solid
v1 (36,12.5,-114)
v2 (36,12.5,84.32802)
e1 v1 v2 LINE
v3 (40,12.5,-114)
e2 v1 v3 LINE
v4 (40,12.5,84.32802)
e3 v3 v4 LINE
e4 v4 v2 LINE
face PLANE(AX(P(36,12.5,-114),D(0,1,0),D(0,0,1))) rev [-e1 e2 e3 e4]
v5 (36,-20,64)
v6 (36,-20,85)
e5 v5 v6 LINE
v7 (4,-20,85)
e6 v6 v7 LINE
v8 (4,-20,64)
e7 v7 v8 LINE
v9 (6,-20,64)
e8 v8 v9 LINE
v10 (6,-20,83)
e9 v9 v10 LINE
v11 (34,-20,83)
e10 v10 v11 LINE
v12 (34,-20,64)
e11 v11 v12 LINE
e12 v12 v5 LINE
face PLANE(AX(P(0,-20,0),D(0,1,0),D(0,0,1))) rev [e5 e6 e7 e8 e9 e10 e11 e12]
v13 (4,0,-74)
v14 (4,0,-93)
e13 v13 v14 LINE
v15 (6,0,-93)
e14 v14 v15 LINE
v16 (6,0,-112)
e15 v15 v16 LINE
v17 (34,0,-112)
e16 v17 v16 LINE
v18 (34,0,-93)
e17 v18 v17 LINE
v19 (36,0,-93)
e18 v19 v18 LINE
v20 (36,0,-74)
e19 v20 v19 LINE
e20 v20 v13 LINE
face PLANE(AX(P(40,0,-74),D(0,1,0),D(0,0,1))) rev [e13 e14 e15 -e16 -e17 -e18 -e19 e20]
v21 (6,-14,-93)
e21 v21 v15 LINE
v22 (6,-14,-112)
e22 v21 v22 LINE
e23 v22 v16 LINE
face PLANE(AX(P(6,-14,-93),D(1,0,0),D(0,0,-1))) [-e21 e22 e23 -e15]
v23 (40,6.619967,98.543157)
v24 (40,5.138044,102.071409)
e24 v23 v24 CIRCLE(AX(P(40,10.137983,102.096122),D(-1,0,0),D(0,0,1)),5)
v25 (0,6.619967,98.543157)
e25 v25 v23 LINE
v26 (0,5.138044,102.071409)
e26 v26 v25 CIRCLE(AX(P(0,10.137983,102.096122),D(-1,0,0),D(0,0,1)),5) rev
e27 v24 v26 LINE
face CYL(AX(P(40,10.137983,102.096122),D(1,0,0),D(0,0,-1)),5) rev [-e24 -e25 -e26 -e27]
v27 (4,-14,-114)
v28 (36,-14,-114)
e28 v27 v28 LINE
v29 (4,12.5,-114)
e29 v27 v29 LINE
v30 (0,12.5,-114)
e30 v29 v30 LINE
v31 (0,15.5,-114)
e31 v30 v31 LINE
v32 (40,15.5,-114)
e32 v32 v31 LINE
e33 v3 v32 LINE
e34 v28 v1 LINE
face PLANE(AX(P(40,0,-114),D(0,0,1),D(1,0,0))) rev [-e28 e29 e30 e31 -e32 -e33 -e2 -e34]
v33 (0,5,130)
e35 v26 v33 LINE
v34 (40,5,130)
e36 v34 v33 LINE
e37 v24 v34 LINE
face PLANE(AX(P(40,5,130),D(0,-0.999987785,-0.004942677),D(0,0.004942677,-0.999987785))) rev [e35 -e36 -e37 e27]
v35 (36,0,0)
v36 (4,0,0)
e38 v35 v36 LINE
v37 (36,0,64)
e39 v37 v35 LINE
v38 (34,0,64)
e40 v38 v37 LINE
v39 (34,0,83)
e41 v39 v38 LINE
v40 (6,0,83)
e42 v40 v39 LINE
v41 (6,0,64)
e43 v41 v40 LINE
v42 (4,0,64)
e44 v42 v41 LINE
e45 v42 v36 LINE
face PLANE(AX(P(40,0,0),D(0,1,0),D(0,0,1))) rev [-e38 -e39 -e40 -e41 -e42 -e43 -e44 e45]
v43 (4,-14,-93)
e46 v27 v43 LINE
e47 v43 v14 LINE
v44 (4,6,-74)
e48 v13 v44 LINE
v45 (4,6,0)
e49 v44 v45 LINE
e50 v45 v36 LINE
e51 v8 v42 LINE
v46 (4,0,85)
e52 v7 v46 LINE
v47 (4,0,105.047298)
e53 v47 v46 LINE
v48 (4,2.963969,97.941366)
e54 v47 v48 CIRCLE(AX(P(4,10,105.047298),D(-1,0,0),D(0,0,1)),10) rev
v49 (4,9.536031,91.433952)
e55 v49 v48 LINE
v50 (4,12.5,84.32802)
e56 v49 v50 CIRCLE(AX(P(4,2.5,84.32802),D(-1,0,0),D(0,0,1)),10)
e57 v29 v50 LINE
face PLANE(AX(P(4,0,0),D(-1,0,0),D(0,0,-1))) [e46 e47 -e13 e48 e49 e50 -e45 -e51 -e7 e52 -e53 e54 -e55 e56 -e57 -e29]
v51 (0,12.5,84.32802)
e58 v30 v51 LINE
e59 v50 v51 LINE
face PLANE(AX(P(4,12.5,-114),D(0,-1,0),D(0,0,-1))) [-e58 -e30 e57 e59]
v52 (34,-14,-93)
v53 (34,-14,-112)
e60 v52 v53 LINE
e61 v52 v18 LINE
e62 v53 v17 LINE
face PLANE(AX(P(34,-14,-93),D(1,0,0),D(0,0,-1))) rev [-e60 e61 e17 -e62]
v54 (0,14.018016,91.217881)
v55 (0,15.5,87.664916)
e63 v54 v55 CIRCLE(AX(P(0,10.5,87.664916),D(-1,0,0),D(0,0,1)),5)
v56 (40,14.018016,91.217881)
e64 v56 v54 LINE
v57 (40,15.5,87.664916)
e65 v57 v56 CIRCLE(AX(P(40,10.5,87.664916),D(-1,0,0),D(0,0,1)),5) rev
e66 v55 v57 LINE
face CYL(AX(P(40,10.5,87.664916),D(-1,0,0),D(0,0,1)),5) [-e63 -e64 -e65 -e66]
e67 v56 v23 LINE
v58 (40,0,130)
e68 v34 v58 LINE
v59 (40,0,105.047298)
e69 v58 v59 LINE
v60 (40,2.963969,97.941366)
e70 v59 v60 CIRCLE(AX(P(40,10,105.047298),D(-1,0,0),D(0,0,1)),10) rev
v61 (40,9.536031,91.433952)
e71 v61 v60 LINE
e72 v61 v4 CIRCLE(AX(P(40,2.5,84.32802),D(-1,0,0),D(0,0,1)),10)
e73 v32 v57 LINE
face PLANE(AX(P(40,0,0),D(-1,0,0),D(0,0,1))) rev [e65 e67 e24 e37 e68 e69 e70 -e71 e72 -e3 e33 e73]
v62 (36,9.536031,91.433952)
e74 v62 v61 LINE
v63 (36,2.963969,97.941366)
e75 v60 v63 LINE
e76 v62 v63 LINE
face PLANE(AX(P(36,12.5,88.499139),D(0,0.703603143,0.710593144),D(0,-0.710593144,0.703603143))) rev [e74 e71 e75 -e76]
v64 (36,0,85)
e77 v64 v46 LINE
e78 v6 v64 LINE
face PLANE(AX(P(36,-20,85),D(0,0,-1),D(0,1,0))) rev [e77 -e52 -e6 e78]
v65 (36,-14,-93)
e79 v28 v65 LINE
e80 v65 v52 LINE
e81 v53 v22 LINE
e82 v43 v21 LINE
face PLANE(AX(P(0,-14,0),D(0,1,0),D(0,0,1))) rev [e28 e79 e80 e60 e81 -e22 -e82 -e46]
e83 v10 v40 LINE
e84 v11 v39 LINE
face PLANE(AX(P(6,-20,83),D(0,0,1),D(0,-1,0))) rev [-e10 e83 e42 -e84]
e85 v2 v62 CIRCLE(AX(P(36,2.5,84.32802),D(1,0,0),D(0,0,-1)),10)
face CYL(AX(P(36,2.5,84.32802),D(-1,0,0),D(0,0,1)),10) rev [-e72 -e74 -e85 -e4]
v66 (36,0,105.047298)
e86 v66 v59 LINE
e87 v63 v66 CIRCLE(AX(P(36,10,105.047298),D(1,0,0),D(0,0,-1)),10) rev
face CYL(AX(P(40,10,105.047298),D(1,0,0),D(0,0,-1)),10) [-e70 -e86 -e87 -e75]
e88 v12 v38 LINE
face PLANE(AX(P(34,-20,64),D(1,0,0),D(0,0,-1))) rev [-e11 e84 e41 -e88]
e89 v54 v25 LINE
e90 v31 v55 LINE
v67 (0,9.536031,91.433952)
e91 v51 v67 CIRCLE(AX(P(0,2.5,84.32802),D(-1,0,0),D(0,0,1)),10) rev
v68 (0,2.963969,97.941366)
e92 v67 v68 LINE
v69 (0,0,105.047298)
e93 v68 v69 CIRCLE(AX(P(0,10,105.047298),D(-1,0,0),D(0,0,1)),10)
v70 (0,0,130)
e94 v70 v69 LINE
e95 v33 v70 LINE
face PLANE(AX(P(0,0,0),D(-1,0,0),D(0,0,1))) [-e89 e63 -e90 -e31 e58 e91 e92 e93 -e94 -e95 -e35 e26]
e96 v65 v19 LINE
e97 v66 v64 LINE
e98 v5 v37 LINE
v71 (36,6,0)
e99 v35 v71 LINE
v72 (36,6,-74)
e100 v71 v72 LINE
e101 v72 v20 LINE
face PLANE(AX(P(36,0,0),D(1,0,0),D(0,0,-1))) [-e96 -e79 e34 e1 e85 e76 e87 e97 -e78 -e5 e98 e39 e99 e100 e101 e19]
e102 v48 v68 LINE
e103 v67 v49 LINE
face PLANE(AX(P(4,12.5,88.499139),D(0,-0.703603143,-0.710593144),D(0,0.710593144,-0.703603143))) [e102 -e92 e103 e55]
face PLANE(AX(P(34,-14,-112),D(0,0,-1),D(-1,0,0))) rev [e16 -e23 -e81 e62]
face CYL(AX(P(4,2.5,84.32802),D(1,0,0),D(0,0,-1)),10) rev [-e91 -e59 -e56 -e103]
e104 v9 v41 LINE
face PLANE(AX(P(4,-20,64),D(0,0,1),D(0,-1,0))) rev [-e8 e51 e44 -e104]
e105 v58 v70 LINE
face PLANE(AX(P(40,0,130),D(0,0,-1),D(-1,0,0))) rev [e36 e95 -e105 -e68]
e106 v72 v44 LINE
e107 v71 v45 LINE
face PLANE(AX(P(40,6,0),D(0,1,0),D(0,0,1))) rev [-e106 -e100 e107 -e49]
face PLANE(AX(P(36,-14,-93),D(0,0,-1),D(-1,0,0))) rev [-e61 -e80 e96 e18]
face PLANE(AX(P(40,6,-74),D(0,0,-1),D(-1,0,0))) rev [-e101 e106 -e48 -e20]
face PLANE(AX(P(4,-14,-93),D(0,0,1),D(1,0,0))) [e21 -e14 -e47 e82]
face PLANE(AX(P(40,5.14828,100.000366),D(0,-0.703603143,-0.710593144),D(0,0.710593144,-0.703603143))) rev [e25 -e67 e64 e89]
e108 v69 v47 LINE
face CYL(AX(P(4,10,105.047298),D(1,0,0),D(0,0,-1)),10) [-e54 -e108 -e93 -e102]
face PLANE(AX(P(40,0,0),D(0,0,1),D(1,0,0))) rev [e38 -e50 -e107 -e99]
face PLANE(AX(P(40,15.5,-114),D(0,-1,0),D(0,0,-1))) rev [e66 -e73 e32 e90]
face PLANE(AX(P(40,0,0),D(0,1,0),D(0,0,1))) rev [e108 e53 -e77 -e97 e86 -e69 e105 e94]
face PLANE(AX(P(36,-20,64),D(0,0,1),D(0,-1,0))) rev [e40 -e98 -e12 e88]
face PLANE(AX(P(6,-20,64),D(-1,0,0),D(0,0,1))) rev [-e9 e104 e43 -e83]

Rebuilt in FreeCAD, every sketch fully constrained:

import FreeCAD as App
import Part
import Sketcher

V = App.Vector


def edges_at(feature, points):
    """Names of the edges that pass closest to the given points."""
    edges = feature.Shape.Edges
    near = lambda p: min(range(len(edges)), key=lambda i: edges[i].distToShape(Part.Vertex(*p))[0])
    return sorted({f"Edge{near(p) + 1}" for p in points})


def add_polygon(sketch, points):
    """Adds a closed chain of lines whose ends are joined by coincident constraints."""
    first, n = sketch.GeometryCount, len(points)
    for a, b in zip(points, points[1:] + points[:1]):
        sketch.addGeometry(Part.LineSegment(App.Vector(*a, 0), App.Vector(*b, 0)), False)
    for i in range(n):
        sketch.addConstraint(Sketcher.Constraint("Coincident", first + i, 2, first + (i + 1) % n, 1))

doc = App.newDocument("Part")
params = doc.addObject("Spreadsheet::Sheet", "Params")
for row, (alias, value) in enumerate([
    ("sketch1_width", "6 mm"),
    ("sketch1_width2", "5 mm"),
    ("sketch1_height", "130 mm"),
    ("sketch1_height2", "74 mm"),
    ("sketch1_height3", "40 mm"),
    ("pad1_length", "40 mm"),
    ("sketch2_width", "12.5 mm"),
    ("pocket1_length", "4 mm"),
    ("fillet_radius", "10 mm"),
    ("fillet2_radius", "5 mm"),
    ("sketch3_width", "32 mm"),
    ("sketch3_width2", "2 mm"),
    ("sketch3_height", "21 mm"),
    ("sketch3_height2", "19 mm"),
    ("pad2_length", "20 mm"),
    ("sketch4_width", "32 mm"),
    ("sketch4_width2", "2 mm"),
    ("sketch4_height", "21 mm"),
    ("sketch4_height2", "19 mm"),
    ("pad3_length", "14 mm"),
], start=1):
    params.set(f"A{row}", alias)
    params.set(f"B{row}", "=" + value)
    params.setAlias(f"B{row}", alias)

body = doc.addObject("PartDesign::Body", "Body")

sketch1 = body.newObject("Sketcher::SketchObject", "Sketch")
sketch1.AttachmentSupport = (doc.getObject("YZ_Plane"), [""])
sketch1.MapMode = "FlatFace"
add_polygon(sketch1, [(0, 130), (0, 0), (6, 0), (6, -74), (0, -74), (0, -114), (15.5, -114), (15.5, 89.750475), (5.14828, 100.000366), (5, 130)])
sketch1.addConstraint([
    Sketcher.Constraint("Vertical", 0),
    Sketcher.Constraint("Horizontal", 1),
    Sketcher.Constraint("Vertical", 2),
    Sketcher.Constraint("Horizontal", 3),
    Sketcher.Constraint("Vertical", 4),
    Sketcher.Constraint("Horizontal", 5),
    Sketcher.Constraint("Vertical", 6),
    Sketcher.Constraint("Horizontal", 9),
    Sketcher.Constraint("Coincident", 0, 2, -1, 1),
    Sketcher.Constraint("PointOnObject", 3, 2, -2),
    Sketcher.Constraint("DistanceX", 1, 1, 1, 2, 6.0),
    Sketcher.Constraint("DistanceX", 9, 2, 9, 1, 5.0),
    Sketcher.Constraint("DistanceY", 0, 2, 0, 1, 130.0),
    Sketcher.Constraint("DistanceY", 2, 2, 2, 1, 74.0),
    Sketcher.Constraint("DistanceY", 4, 2, 4, 1, 40.0),
    Sketcher.Constraint("Distance", 8, 30.0),
    Sketcher.Constraint("DistanceX", 5, 1, 5, 2, 15.5),
    Sketcher.Constraint("DistanceY", 6, 1, 6, 2, 203.750475),
    Sketcher.Constraint("DistanceX", -1, 1, 7, 2, 5.14828),
])
sketch1.setExpression("Constraints[20]", "Params.sketch1_width")
sketch1.setExpression("Constraints[21]", "Params.sketch1_width2")
sketch1.setExpression("Constraints[22]", "Params.sketch1_height")
sketch1.setExpression("Constraints[23]", "Params.sketch1_height2")
sketch1.setExpression("Constraints[24]", "Params.sketch1_height3")
pad1 = body.newObject("PartDesign::Pad", "Pad")
pad1.Profile = sketch1
pad1.setExpression("Length", "Params.pad1_length")

sketch2 = body.newObject("Sketcher::SketchObject", "Sketch001")
sketch2.AttachmentSupport = (doc.getObject("YZ_Plane"), [""])
sketch2.MapMode = "FlatFace"
sketch2.AttachmentOffset = App.Placement(V(0, 0, 40), App.Rotation())
add_polygon(sketch2, [(0, 100.876179), (0, -114), (12.5, -114), (12.5, 88.499139)])
sketch2.addConstraint([
    Sketcher.Constraint("Vertical", 0),
    Sketcher.Constraint("Horizontal", 1),
    Sketcher.Constraint("Vertical", 2),
    Sketcher.Constraint("PointOnObject", 0, 2, -2),
    Sketcher.Constraint("DistanceX", 1, 1, 1, 2, 12.5),
    Sketcher.Constraint("DistanceY", 0, 2, -1, 1, 114.0),
    Sketcher.Constraint("DistanceY", 0, 2, 0, 1, 214.876179),
    Sketcher.Constraint("DistanceY", 2, 1, 2, 2, 202.499139),
])
sketch2.setExpression("Constraints[8]", "Params.sketch2_width")
pocket1 = body.newObject("PartDesign::Pocket", "Pocket")
pocket1.Profile = sketch2
pocket1.setExpression("Length", "Params.pocket1_length")
doc.recompute()

datumplane = body.newObject("PartDesign::Plane", "DatumPlane")
datumplane.AttachmentSupport = (doc.getObject("YZ_Plane"), [""])
datumplane.MapMode = "FlatFace"
datumplane.AttachmentOffset = App.Placement(V(0, 0, 20), App.Rotation())
mirrored = body.newObject("PartDesign::Mirrored", "Mirrored")
mirrored.Originals = [pocket1]
mirrored.MirrorPlane = (datumplane, [""])
body.Tip = mirrored
doc.recompute()

fillet = body.newObject("PartDesign::Fillet", "Fillet")
fillet.Base = (mirrored, edges_at(mirrored, [
    (38, 0, 100.876),
    (38, 12.5, 88.499),
    (2, 0, 100.876),
    (2, 12.5, 88.499),
]))
fillet.setExpression("Radius", "Params.fillet_radius")
doc.recompute()

fillet2 = body.newObject("PartDesign::Fillet", "Fillet001")
fillet2.Base = (fillet, edges_at(fillet, [(20, 5.148, 100), (20, 15.5, 89.75)]))
fillet2.setExpression("Radius", "Params.fillet2_radius")

sketch3 = body.newObject("Sketcher::SketchObject", "Sketch002")
sketch3.AttachmentSupport = (doc.getObject("XZ_Plane"), [""])
sketch3.MapMode = "FlatFace"
add_polygon(sketch3, [(36, 85), (4, 85), (4, 64), (6, 64), (6, 83), (34, 83), (34, 64), (36, 64)])
sketch3.addConstraint([
    Sketcher.Constraint("Horizontal", 0),
    Sketcher.Constraint("Vertical", 1),
    Sketcher.Constraint("Horizontal", 2),
    Sketcher.Constraint("Vertical", 3),
    Sketcher.Constraint("Horizontal", 4),
    Sketcher.Constraint("Vertical", 5),
    Sketcher.Constraint("Horizontal", 6),
    Sketcher.Constraint("Vertical", 7),
    Sketcher.Constraint("Horizontal", 2, 2, 5, 2),
    Sketcher.Constraint("Equal", 2, 6),
    Sketcher.Constraint("DistanceX", 0, 2, 0, 1, 32.0),
    Sketcher.Constraint("DistanceX", 2, 1, 2, 2, 2.0),
    Sketcher.Constraint("DistanceY", 1, 2, 1, 1, 21.0),
    Sketcher.Constraint("DistanceY", 3, 1, 3, 2, 19.0),
    Sketcher.Constraint("DistanceX", -1, 1, 0, 2, 4.0),
    Sketcher.Constraint("DistanceY", -1, 1, 0, 2, 85.0),
])
sketch3.setExpression("Constraints[18]", "Params.sketch3_width")
sketch3.setExpression("Constraints[19]", "Params.sketch3_width2")
sketch3.setExpression("Constraints[20]", "Params.sketch3_height")
sketch3.setExpression("Constraints[21]", "Params.sketch3_height2")
pad2 = body.newObject("PartDesign::Pad", "Pad001")
pad2.Profile = sketch3
pad2.setExpression("Length", "Params.pad2_length")

sketch4 = body.newObject("Sketcher::SketchObject", "Sketch003")
sketch4.AttachmentSupport = (doc.getObject("XZ_Plane"), [""])
sketch4.MapMode = "FlatFace"
add_polygon(sketch4, [(4, -114), (36, -114), (36, -93), (34, -93), (34, -112), (6, -112), (6, -93), (4, -93)])
sketch4.addConstraint([
    Sketcher.Constraint("Horizontal", 0),
    Sketcher.Constraint("Vertical", 1),
    Sketcher.Constraint("Horizontal", 2),
    Sketcher.Constraint("Vertical", 3),
    Sketcher.Constraint("Horizontal", 4),
    Sketcher.Constraint("Vertical", 5),
    Sketcher.Constraint("Horizontal", 6),
    Sketcher.Constraint("Vertical", 7),
    Sketcher.Constraint("Horizontal", 2, 2, 5, 2),
    Sketcher.Constraint("Equal", 2, 6),
    Sketcher.Constraint("DistanceX", 0, 1, 0, 2, 32.0),
    Sketcher.Constraint("DistanceX", 2, 2, 2, 1, 2.0),
    Sketcher.Constraint("DistanceY", 1, 1, 1, 2, 21.0),
    Sketcher.Constraint("DistanceY", 3, 2, 3, 1, 19.0),
    Sketcher.Constraint("DistanceX", -1, 1, 0, 2, 36.0),
    Sketcher.Constraint("DistanceY", 0, 2, -1, 1, 114.0),
])
sketch4.setExpression("Constraints[18]", "Params.sketch4_width")
sketch4.setExpression("Constraints[19]", "Params.sketch4_width2")
sketch4.setExpression("Constraints[20]", "Params.sketch4_height")
sketch4.setExpression("Constraints[21]", "Params.sketch4_height2")
pad3 = body.newObject("PartDesign::Pad", "Pad002")
pad3.Profile = sketch4
pad3.setExpression("Length", "Params.pad3_length")

doc.recompute()
